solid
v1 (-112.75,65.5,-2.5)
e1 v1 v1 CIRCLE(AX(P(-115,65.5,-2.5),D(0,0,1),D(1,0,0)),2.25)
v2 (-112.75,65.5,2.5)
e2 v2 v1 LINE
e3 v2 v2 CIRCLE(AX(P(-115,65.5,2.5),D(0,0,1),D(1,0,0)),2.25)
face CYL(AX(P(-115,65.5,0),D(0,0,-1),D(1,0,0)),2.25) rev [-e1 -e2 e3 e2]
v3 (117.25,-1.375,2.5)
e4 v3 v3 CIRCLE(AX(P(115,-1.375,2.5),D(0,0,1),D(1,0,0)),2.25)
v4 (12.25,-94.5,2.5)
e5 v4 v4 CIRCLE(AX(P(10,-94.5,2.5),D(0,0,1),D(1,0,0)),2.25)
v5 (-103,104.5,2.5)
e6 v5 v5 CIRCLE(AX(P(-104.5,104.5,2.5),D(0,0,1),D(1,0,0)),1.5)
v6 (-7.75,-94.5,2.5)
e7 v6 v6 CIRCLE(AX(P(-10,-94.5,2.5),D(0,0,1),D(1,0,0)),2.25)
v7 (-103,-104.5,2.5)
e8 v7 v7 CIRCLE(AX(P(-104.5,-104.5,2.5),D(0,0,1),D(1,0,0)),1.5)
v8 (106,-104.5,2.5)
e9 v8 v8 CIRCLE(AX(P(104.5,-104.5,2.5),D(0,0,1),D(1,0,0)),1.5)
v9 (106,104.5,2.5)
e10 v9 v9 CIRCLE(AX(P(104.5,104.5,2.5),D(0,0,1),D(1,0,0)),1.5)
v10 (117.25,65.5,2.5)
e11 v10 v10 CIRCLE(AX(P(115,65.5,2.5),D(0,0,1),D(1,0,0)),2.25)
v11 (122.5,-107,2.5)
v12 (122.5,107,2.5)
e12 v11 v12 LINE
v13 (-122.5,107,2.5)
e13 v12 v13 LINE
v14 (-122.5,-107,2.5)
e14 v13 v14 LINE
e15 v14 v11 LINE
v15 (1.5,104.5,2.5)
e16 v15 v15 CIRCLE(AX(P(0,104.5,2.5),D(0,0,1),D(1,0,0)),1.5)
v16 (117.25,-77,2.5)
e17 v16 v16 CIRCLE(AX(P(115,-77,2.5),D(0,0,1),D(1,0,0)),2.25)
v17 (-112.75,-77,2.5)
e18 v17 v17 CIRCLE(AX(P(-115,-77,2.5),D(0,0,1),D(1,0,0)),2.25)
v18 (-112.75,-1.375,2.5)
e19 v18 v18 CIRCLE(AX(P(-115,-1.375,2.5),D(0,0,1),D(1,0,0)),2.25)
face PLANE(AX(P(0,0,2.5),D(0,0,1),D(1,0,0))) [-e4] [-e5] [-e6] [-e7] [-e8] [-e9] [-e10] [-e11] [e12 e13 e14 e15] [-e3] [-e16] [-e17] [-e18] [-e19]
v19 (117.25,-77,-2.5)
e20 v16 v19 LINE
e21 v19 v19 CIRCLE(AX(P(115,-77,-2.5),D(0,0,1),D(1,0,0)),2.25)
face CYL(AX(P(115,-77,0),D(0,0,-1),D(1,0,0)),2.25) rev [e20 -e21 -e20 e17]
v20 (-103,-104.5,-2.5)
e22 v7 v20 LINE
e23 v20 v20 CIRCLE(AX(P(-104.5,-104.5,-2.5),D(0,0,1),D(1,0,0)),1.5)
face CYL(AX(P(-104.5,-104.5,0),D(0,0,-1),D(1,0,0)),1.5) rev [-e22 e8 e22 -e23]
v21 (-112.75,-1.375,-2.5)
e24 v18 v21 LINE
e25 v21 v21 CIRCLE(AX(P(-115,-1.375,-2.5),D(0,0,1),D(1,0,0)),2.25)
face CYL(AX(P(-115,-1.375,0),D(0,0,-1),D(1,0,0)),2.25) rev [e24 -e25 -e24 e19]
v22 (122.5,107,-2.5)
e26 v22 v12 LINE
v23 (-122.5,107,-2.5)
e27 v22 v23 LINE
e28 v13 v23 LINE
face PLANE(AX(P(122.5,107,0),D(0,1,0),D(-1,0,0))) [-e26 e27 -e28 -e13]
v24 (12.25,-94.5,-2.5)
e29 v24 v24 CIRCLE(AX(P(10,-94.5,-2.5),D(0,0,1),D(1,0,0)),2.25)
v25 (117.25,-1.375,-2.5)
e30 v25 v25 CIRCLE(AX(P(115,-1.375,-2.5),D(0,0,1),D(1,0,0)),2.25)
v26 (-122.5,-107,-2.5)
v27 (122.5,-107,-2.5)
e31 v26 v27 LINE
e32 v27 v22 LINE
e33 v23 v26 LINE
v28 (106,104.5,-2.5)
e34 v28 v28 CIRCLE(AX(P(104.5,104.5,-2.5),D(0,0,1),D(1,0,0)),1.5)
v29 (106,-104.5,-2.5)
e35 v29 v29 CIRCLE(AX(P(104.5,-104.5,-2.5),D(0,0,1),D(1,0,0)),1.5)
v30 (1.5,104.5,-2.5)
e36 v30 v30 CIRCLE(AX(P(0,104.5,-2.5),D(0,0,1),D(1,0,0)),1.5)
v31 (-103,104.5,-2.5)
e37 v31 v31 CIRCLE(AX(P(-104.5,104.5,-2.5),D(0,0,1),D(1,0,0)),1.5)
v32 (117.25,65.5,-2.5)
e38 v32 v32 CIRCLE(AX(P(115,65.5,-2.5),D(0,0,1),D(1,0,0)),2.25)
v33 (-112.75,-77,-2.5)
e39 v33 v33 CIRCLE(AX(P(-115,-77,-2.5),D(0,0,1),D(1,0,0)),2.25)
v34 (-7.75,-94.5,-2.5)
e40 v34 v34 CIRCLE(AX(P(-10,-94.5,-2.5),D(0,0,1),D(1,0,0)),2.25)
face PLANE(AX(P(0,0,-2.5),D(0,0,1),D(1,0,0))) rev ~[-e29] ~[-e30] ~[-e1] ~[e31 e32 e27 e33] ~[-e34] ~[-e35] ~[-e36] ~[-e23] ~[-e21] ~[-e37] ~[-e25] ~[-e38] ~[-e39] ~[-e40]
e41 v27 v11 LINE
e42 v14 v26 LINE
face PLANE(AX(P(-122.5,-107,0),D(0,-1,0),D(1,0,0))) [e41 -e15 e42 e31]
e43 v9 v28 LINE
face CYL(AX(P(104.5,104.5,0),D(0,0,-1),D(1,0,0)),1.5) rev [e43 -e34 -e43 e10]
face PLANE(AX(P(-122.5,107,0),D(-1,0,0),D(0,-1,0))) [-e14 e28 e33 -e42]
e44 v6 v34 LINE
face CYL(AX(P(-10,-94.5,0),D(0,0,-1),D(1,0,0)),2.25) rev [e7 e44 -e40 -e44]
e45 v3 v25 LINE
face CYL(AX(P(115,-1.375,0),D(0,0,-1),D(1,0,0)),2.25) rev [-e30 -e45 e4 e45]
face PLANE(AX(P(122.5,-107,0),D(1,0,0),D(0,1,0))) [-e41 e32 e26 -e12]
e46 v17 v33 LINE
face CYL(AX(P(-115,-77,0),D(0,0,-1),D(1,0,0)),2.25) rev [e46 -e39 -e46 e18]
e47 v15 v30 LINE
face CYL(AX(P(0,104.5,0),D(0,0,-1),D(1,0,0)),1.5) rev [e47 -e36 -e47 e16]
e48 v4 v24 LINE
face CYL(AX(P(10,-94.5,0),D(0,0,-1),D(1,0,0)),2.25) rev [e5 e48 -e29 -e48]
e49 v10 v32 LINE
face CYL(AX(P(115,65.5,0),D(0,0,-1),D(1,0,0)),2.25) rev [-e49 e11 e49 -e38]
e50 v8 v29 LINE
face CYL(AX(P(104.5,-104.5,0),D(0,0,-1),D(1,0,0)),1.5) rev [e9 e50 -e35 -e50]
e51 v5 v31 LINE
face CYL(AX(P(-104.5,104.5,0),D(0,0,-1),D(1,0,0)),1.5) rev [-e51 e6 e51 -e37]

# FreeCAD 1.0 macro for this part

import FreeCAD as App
import Part
import Sketcher
Q = App.Units.Quantity

doc = App.newDocument("Part")
body = doc.addObject("PartDesign::Body", "Body")

sketch1 = doc.addObject("Sketcher::SketchObject", "Sketch")
body.addObject(sketch1)
sketch1.AttachmentSupport = (doc.XY_Plane, [""])
sketch1.MapMode = "FlatFace"
sketch1.addGeometry([
    Part.LineSegment(App.Vector(-122.5, -107, 0), App.Vector(122.5, -107, 0)),
    Part.LineSegment(App.Vector(122.5, -107, 0), App.Vector(122.5, 107, 0)),
    Part.LineSegment(App.Vector(122.5, 107, 0), App.Vector(-122.5, 107, 0)),
    Part.LineSegment(App.Vector(-122.5, 107, 0), App.Vector(-122.5, -107, 0)),
    Part.Circle(App.Vector(-104.5, -104.5, 0), App.Vector(0, 0, 1), 1.5),
    Part.Circle(App.Vector(-115, -77, 0), App.Vector(0, 0, 1), 2.25),
    Part.Circle(App.Vector(-10, -94.5, 0), App.Vector(0, 0, 1), 2.25),
    Part.Circle(App.Vector(-115, -1.375, 0), App.Vector(0, 0, 1), 2.25),
    Part.Circle(App.Vector(10, -94.5, 0), App.Vector(0, 0, 1), 2.25),
    Part.Circle(App.Vector(104.5, -104.5, 0), App.Vector(0, 0, 1), 1.5),
    Part.Circle(App.Vector(115, -77, 0), App.Vector(0, 0, 1), 2.25),
    Part.Circle(App.Vector(115, -1.375, 0), App.Vector(0, 0, 1), 2.25),
    Part.Circle(App.Vector(-115, 65.5, 0), App.Vector(0, 0, 1), 2.25),
    Part.Circle(App.Vector(-104.5, 104.5, 0), App.Vector(0, 0, 1), 1.5),
    Part.Circle(App.Vector(0, 104.5, 0), App.Vector(0, 0, 1), 1.5),
    Part.Circle(App.Vector(115, 65.5, 0), App.Vector(0, 0, 1), 2.25),
    Part.Circle(App.Vector(104.5, 104.5, 0), App.Vector(0, 0, 1), 1.5),
], False)
sketch1.addConstraint([
    Sketcher.Constraint("Coincident", 0, 2, 1, 1),
    Sketcher.Constraint("Coincident", 1, 2, 2, 1),
    Sketcher.Constraint("Coincident", 2, 2, 3, 1),
    Sketcher.Constraint("Coincident", 3, 2, 0, 1),
    Sketcher.Constraint("Horizontal", 0),
    Sketcher.Constraint("Vertical", 1),
    Sketcher.Constraint("Horizontal", 2),
    Sketcher.Constraint("Vertical", 3),
    Sketcher.Constraint("Equal", 5, 6),
    Sketcher.Constraint("Equal", 6, 7),
    Sketcher.Constraint("Equal", 7, 8),
    Sketcher.Constraint("Equal", 4, 9),
    Sketcher.Constraint("Equal", 8, 10),
    Sketcher.Constraint("Equal", 10, 11),
    Sketcher.Constraint("Equal", 11, 12),
    Sketcher.Constraint("Equal", 9, 13),
    Sketcher.Constraint("Equal", 13, 14),
    Sketcher.Constraint("Equal", 12, 15),
    Sketcher.Constraint("Equal", 14, 16),
    Sketcher.Constraint("Symmetric", 9, 3, 13, 3, -1, 1),
    Sketcher.Constraint("Symmetric", 4, 3, 16, 3, -1, 1),
    Sketcher.Constraint("Symmetric", 0, 2, 2, 2, -1, 1),
    Sketcher.Constraint("Symmetric", 6, 3, 8, 3, -2),
    Sketcher.Constraint("Symmetric", 4, 3, 9, 3, -2),
    Sketcher.Constraint("Symmetric", 5, 3, 10, 3, -2),
    Sketcher.Constraint("Symmetric", 7, 3, 11, 3, -2),
    Sketcher.Constraint("Symmetric", 12, 3, 15, 3, -2),
    Sketcher.Constraint("PointOnObject", 14, 3, -2),
    Sketcher.Constraint("Horizontal", 13, 3, 14, 3),
    Sketcher.Constraint("Vertical", 5, 3, 7, 3),
    Sketcher.Constraint("Vertical", 7, 3, 12, 3),
    Sketcher.Constraint("Diameter", 4, Q("3 mm")),
    Sketcher.Constraint("Diameter", 5, Q("4.5 mm")),
    Sketcher.Constraint("DistanceX", 0, 1, 0, 2, Q("245 mm")),
    Sketcher.Constraint("DistanceY", 1, 1, 1, 2, Q("214 mm")),
    Sketcher.Constraint("DistanceX", 5, 3, -1, 1, Q("115 mm")),
    Sketcher.Constraint("DistanceY", 5, 3, -1, 1, Q("77 mm")),
    Sketcher.Constraint("DistanceX", 6, 3, -1, 1, Q("10 mm")),
    Sketcher.Constraint("DistanceY", 4, 3, 6, 3, Q("10 mm")),
    Sketcher.Constraint("DistanceX", 4, 3, 9, 3, Q("209 mm")),
    Sketcher.Constraint("DistanceY", 4, 3, 12, 3, Q("170 mm")),
    Sketcher.Constraint("DistanceY", 12, 3, 13, 3, Q("39 mm")),
    Sketcher.Constraint("DistanceY", 7, 3, -1, 1, Q("1.375 mm")),
])
pad1 = doc.addObject("PartDesign::Pad", "Pad")
body.addObject(pad1)
pad1.Profile = sketch1
pad1.Length = 5
pad1.Midplane = True

doc.recompute()
